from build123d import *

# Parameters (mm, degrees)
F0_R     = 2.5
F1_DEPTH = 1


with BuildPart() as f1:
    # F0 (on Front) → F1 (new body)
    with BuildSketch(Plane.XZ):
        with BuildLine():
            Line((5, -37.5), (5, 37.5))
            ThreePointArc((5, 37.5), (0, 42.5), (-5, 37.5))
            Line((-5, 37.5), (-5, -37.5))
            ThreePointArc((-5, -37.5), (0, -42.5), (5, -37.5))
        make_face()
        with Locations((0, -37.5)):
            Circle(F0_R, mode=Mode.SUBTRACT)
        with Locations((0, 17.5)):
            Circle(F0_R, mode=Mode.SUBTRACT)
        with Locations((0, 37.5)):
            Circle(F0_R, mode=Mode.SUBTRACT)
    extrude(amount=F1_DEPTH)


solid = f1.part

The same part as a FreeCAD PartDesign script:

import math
import FreeCAD as App
import Part
import Sketcher

V = App.Vector
Q = App.Units.Quantity

doc = App.newDocument("Part")
body = doc.addObject("PartDesign::Body", "Body")

# Sketch on XZ plane
sketch1 = doc.addObject("Sketcher::SketchObject", "Sketch")
body.addObject(sketch1)
sketch1.AttachmentSupport = (doc.XZ_Plane, [""])
sketch1.MapMode = "FlatFace"
sketch1.addGeometry([
    Part.LineSegment(V(5, -37.5, 0), V(5, 37.5, 0)),  # 0
    Part.ArcOfCircle(Part.Circle(V(0, 37.5, 0), V(0, 0, 1), 5), math.radians(0), math.radians(180)),  # 1
    Part.LineSegment(V(-5, 37.5, 0), V(-5, -37.5, 0)),  # 2
    Part.ArcOfCircle(Part.Circle(V(0, -37.5, 0), V(0, 0, 1), 5), math.radians(180), math.radians(360)),  # 3
    Part.Circle(V(0, -37.5, 0), V(0, 0, 1), 2.5),  # 4
    Part.Circle(V(0, 17.5, 0), V(0, 0, 1), 2.5),  # 5
    Part.Circle(V(0, 37.5, 0), V(0, 0, 1), 2.5),  # 6
], False)
sketch1.addConstraint([
    Sketcher.Constraint("Tangent", 0, 2, 1, 1),
    Sketcher.Constraint("Tangent", 1, 2, 2, 1),
    Sketcher.Constraint("Tangent", 2, 2, 3, 1),
    Sketcher.Constraint("Tangent", 3, 2, 0, 1),
    Sketcher.Constraint("Vertical", 0),
    Sketcher.Constraint("Vertical", 2),
    Sketcher.Constraint("Coincident", 4, 3, 3, 3),
    Sketcher.Constraint("Coincident", 6, 3, 1, 3),
    Sketcher.Constraint("Equal", 4, 5),
    Sketcher.Constraint("Equal", 5, 6),
    Sketcher.Constraint("Symmetric", 1, 3, 3, 3, -1, 1),
    Sketcher.Constraint("PointOnObject", 5, 3, -2),
    Sketcher.Constraint("Diameter", 4, Q("5 mm")),
    Sketcher.Constraint("Radius", 1, Q("5 mm")),
    Sketcher.Constraint("DistanceY", 0, 1, 0, 2, Q("75 mm")),
    Sketcher.Constraint("DistanceY", 5, 3, 1, 3, Q("20 mm")),
])
pad1 = doc.addObject("PartDesign::Pad", "Pad")
body.addObject(pad1)
pad1.Profile = sketch1
pad1.Length = 1

doc.recompute()
